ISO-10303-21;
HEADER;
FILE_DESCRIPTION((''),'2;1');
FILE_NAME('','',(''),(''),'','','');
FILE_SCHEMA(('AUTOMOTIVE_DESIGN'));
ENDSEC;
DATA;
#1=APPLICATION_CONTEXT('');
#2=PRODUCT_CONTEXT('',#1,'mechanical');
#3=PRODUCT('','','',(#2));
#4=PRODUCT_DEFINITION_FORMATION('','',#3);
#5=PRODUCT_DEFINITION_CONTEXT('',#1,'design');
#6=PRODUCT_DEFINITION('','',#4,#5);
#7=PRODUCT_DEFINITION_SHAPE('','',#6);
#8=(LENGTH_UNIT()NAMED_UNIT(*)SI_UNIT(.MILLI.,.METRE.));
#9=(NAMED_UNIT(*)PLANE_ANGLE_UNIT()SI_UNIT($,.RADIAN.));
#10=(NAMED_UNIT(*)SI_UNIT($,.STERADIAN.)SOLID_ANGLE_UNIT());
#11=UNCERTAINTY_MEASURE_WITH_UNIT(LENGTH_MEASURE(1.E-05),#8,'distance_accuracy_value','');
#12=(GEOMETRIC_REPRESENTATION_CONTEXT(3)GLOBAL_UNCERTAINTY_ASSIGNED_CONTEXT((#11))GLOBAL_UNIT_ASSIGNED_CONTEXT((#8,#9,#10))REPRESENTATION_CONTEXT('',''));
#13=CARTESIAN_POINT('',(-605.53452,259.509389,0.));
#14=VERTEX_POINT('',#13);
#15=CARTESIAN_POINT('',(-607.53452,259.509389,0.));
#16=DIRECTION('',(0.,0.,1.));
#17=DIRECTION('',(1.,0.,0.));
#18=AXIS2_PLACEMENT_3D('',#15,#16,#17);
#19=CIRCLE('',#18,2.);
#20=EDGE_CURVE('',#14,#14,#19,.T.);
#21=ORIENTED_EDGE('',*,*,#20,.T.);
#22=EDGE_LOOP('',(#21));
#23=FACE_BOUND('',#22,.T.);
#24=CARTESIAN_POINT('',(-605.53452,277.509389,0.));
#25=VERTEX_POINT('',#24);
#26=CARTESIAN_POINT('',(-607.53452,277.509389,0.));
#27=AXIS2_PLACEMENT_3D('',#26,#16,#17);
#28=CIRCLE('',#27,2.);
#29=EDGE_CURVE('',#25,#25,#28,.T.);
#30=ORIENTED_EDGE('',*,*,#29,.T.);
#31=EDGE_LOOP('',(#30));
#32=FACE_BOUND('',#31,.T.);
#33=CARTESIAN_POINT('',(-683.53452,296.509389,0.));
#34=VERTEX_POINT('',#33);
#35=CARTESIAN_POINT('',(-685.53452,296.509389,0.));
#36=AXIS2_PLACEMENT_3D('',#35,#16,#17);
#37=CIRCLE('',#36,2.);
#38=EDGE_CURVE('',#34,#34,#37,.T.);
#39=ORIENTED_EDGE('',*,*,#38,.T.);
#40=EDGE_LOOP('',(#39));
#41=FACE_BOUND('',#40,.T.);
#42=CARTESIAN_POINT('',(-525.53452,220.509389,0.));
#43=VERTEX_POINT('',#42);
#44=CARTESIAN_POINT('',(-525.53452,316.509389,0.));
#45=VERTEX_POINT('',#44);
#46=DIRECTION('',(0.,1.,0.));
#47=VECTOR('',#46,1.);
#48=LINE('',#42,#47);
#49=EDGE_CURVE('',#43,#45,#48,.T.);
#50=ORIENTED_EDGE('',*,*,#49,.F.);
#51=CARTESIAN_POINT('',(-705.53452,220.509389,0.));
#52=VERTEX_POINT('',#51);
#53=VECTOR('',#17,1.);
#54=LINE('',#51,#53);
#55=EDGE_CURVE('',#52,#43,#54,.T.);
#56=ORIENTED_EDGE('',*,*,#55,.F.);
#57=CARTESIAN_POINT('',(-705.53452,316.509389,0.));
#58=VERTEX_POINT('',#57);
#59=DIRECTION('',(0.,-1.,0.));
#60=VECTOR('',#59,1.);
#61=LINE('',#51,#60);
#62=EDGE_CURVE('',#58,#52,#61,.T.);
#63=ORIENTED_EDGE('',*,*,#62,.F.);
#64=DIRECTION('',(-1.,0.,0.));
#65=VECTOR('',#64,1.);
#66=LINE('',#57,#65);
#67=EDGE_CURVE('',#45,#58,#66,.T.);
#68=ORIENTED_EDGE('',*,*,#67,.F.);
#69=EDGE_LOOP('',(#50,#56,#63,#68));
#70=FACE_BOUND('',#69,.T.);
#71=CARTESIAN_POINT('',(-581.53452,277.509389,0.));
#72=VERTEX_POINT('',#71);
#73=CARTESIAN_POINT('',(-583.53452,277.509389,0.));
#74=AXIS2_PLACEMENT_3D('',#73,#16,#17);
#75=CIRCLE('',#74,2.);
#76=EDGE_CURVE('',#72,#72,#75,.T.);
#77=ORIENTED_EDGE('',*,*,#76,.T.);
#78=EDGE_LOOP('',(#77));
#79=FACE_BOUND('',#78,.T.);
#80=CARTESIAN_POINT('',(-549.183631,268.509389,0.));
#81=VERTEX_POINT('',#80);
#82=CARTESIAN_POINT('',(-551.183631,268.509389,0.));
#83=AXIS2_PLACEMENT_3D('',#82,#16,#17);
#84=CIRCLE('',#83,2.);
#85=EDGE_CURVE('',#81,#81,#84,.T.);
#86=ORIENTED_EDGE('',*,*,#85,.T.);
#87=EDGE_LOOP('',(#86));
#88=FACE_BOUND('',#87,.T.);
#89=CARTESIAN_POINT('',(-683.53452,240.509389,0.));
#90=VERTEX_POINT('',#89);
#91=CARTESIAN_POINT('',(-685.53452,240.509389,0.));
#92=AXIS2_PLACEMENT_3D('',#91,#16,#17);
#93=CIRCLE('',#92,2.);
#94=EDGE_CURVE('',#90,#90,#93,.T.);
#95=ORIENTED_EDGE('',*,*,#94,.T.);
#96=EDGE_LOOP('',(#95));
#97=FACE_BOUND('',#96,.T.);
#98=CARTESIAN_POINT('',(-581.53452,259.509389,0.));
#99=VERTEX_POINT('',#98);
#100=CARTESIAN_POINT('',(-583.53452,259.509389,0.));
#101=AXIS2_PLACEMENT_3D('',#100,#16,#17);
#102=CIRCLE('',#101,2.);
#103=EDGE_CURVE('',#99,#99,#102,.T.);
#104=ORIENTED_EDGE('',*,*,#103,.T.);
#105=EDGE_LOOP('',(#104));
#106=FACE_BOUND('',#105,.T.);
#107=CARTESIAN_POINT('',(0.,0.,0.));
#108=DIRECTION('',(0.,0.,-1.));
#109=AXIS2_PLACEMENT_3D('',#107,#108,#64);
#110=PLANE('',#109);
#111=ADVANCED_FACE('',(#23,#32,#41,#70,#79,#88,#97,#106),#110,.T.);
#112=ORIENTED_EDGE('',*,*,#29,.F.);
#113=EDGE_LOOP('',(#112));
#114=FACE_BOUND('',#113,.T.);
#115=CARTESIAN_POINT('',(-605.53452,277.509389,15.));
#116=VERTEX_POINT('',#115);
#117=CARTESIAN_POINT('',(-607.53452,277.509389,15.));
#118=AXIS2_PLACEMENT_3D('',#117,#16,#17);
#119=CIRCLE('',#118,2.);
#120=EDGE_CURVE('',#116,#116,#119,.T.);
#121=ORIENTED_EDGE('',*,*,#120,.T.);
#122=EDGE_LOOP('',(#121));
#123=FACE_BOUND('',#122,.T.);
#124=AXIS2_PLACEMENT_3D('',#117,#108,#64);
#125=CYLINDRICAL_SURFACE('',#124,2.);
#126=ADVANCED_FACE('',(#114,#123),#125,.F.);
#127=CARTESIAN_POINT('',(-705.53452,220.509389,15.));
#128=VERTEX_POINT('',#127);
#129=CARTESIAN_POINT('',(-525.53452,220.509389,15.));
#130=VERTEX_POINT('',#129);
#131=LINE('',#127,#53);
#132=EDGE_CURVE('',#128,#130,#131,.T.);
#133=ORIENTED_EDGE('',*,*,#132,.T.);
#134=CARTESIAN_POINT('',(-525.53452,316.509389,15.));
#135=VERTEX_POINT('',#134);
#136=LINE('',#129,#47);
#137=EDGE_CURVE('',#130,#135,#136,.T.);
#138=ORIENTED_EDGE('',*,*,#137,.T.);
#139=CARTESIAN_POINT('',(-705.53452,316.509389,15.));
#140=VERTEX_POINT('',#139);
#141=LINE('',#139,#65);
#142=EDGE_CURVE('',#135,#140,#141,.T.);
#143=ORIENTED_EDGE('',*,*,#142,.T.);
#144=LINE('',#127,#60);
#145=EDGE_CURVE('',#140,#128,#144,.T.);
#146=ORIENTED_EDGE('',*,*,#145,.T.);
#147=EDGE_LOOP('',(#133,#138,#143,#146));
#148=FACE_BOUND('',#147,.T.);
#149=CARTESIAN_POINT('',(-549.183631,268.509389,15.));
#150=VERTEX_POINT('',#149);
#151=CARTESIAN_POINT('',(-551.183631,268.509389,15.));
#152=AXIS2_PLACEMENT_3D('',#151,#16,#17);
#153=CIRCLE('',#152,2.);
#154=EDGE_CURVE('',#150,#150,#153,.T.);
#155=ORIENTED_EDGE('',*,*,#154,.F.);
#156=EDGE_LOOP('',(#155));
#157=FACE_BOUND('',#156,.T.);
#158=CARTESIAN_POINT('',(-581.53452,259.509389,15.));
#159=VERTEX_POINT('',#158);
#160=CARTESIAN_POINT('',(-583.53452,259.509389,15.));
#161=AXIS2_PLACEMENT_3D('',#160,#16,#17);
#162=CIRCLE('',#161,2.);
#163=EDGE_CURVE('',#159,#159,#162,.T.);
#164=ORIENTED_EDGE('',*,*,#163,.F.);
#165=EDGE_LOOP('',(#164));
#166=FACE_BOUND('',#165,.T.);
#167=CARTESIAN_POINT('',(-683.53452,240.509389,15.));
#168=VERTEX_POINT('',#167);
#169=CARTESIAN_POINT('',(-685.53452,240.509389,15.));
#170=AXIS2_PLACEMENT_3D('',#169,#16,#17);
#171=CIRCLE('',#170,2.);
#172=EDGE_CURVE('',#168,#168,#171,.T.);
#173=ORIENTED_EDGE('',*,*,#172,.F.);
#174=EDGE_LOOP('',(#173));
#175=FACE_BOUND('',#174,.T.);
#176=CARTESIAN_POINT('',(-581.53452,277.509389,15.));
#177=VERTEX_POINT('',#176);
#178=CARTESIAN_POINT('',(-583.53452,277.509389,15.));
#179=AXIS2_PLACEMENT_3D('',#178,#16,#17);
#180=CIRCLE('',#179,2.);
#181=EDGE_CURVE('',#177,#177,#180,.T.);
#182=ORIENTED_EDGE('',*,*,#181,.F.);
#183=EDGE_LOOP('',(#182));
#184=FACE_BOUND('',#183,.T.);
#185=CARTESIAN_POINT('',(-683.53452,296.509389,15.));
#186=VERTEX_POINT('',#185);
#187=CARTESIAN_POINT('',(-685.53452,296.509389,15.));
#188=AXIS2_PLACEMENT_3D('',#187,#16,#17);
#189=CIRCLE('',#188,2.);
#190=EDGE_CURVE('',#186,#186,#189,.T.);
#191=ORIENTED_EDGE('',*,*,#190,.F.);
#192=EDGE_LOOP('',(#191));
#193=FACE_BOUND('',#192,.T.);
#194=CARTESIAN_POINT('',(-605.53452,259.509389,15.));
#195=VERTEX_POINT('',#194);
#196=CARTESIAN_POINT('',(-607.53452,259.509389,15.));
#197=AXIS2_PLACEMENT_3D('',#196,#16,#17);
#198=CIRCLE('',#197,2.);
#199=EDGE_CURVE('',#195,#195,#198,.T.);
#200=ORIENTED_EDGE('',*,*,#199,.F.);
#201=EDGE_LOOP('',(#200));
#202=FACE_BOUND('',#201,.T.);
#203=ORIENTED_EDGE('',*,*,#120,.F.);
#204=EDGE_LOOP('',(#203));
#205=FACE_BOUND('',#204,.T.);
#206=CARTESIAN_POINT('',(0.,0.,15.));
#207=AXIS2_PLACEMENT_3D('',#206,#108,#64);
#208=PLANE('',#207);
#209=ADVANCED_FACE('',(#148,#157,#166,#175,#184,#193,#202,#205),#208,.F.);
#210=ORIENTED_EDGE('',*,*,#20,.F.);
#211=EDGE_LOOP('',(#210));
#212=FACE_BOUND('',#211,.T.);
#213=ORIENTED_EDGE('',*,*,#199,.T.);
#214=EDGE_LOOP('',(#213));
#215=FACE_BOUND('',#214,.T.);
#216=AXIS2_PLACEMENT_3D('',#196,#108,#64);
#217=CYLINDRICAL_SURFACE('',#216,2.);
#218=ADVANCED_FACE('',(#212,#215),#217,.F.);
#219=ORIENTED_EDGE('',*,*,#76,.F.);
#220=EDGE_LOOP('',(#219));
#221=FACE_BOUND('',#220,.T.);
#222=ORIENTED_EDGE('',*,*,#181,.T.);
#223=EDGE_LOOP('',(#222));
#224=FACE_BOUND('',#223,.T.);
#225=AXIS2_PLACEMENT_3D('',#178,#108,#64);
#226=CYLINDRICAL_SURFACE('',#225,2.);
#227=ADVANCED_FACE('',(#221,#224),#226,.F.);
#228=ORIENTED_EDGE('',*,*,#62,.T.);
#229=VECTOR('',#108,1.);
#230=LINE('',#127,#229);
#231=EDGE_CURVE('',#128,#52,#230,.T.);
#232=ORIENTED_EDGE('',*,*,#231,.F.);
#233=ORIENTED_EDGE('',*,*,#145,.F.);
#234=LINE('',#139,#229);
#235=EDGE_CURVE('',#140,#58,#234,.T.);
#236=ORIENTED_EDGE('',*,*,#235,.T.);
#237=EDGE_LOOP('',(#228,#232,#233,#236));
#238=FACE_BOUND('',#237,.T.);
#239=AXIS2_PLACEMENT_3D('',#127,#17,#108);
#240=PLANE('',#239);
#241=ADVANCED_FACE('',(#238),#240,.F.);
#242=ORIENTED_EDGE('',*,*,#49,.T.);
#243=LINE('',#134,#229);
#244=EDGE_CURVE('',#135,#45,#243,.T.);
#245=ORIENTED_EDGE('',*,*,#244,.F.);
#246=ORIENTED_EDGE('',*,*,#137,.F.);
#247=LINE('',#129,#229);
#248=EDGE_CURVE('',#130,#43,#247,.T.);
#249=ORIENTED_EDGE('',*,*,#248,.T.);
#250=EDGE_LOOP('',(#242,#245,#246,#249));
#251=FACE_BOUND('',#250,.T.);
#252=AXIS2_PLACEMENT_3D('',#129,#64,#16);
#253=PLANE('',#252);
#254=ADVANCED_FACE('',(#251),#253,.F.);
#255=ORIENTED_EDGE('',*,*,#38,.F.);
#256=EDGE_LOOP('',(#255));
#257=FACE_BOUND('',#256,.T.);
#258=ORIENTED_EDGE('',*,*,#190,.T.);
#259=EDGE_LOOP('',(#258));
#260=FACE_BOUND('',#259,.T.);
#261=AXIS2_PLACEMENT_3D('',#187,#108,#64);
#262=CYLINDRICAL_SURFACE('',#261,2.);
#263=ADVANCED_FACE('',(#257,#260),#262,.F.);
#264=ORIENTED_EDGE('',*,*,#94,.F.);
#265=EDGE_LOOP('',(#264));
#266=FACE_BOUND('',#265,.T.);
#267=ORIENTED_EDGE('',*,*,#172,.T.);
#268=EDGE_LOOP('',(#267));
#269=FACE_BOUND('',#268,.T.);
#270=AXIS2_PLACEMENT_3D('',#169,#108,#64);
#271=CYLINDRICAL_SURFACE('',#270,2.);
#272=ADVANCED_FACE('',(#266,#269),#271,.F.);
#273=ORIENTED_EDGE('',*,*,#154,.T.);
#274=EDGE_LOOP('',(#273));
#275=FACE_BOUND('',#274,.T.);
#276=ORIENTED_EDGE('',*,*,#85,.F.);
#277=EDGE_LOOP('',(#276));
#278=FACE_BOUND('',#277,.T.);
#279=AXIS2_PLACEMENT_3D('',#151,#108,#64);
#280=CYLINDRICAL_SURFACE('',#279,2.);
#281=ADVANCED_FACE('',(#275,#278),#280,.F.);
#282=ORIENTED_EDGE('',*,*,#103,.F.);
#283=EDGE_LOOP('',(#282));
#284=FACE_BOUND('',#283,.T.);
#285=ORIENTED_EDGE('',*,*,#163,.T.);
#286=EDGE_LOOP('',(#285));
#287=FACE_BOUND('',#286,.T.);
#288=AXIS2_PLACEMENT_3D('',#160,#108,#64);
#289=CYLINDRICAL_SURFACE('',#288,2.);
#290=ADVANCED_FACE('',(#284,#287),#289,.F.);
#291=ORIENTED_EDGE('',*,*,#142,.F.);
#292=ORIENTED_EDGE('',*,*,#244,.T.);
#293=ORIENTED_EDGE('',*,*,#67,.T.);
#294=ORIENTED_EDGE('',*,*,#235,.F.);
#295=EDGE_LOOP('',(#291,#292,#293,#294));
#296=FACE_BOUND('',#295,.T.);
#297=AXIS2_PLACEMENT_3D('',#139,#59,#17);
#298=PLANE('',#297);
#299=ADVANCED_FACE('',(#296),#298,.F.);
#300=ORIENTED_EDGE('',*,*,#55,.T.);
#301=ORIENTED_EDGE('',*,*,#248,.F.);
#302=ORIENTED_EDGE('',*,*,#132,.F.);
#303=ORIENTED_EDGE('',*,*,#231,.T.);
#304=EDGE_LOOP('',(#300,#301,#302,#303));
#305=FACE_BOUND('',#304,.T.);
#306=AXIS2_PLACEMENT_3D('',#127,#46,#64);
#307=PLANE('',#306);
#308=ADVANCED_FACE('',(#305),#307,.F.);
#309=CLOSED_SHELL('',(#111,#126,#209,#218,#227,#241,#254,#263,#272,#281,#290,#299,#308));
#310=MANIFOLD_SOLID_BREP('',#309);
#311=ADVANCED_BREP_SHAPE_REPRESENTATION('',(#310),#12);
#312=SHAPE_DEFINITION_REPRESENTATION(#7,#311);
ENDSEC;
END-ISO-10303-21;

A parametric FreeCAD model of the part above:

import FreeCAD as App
import Part
import Sketcher

V = App.Vector
Q = App.Units.Quantity

doc = App.newDocument("Part")
body = doc.addObject("PartDesign::Body", "Body")

sketch1 = body.newObject("Sketcher::SketchObject", "Sketch")
sketch1.AttachmentSupport = (doc.getObject("XY_Plane"), [""])
sketch1.MapMode = "FlatFace"
sketch1.addGeometry([
    Part.LineSegment(V(-705.5, 316.5, 0), V(-705.5, 220.5, 0)),
    Part.LineSegment(V(-705.5, 220.5, 0), V(-525.5, 220.5, 0)),
    Part.LineSegment(V(-525.5, 220.5, 0), V(-525.5, 316.5, 0)),
    Part.LineSegment(V(-525.5, 316.5, 0), V(-705.5, 316.5, 0)),
    Part.Circle(V(-685.5, 240.5, 0), V(0, 0, 1), 2),
    Part.Circle(V(-607.5, 259.5, 0), V(0, 0, 1), 2),
    Part.Circle(V(-583.5, 259.5, 0), V(0, 0, 1), 2),
    Part.Circle(V(-685.5, 296.5, 0), V(0, 0, 1), 2),
    Part.Circle(V(-607.5, 277.5, 0), V(0, 0, 1), 2),
    Part.Circle(V(-551.2, 268.5, 0), V(0, 0, 1), 2),
    Part.Circle(V(-583.5, 277.5, 0), V(0, 0, 1), 2),
], False)
sketch1.addConstraint([
    Sketcher.Constraint("Coincident", 0, 2, 1, 1),
    Sketcher.Constraint("Coincident", 1, 2, 2, 1),
    Sketcher.Constraint("Coincident", 2, 2, 3, 1),
    Sketcher.Constraint("Coincident", 3, 2, 0, 1),
    Sketcher.Constraint("Vertical", 0),
    Sketcher.Constraint("Horizontal", 1),
    Sketcher.Constraint("Vertical", 2),
    Sketcher.Constraint("Horizontal", 3),
    Sketcher.Constraint("Equal", 4, 5),
    Sketcher.Constraint("Equal", 5, 6),
    Sketcher.Constraint("Equal", 6, 7),
    Sketcher.Constraint("Equal", 7, 8),
    Sketcher.Constraint("Equal", 8, 9),
    Sketcher.Constraint("Equal", 9, 10),
    Sketcher.Constraint("Horizontal", 5, 3, 6, 3),
    Sketcher.Constraint("Horizontal", 8, 3, 10, 3),
    Sketcher.Constraint("Vertical", 4, 3, 7, 3),
    Sketcher.Constraint("Vertical", 5, 3, 8, 3),
    Sketcher.Constraint("Vertical", 6, 3, 10, 3),
    Sketcher.Constraint("Diameter", 4, Q("4 mm")),
    Sketcher.Constraint("DistanceX", 1, 1, 1, 2, Q("180 mm")),
    Sketcher.Constraint("DistanceY", 0, 2, 0, 1, Q("96 mm")),
    Sketcher.Constraint("DistanceX", 4, 3, 5, 3, Q("78 mm")),
    Sketcher.Constraint("DistanceY", 4, 3, 5, 3, Q("19 mm")),
    Sketcher.Constraint("DistanceX", 5, 3, 6, 3, Q("24 mm")),
    Sketcher.Constraint("DistanceY", 4, 3, 7, 3, Q("56 mm")),
    Sketcher.Constraint("DistanceY", 5, 3, 8, 3, Q("18 mm")),
    Sketcher.Constraint("DistanceY", 6, 3, 9, 3, Q("9 mm")),
    Sketcher.Constraint("DistanceX", 0, 2, 4, 3, Q("20 mm")),
    Sketcher.Constraint("DistanceY", 0, 2, 4, 3, Q("20 mm")),
    Sketcher.Constraint("DistanceX", 4, 3, -1, 1, Q("685.53452 mm")),
    Sketcher.Constraint("DistanceY", -1, 1, 4, 3, Q("240.509389 mm")),
    Sketcher.Constraint("DistanceX", 9, 3, -1, 1, Q("551.183631 mm")),
])
pad1 = body.newObject("PartDesign::Pad", "Pad")
pad1.Profile = sketch1
pad1.Length = 15

doc.recompute()
